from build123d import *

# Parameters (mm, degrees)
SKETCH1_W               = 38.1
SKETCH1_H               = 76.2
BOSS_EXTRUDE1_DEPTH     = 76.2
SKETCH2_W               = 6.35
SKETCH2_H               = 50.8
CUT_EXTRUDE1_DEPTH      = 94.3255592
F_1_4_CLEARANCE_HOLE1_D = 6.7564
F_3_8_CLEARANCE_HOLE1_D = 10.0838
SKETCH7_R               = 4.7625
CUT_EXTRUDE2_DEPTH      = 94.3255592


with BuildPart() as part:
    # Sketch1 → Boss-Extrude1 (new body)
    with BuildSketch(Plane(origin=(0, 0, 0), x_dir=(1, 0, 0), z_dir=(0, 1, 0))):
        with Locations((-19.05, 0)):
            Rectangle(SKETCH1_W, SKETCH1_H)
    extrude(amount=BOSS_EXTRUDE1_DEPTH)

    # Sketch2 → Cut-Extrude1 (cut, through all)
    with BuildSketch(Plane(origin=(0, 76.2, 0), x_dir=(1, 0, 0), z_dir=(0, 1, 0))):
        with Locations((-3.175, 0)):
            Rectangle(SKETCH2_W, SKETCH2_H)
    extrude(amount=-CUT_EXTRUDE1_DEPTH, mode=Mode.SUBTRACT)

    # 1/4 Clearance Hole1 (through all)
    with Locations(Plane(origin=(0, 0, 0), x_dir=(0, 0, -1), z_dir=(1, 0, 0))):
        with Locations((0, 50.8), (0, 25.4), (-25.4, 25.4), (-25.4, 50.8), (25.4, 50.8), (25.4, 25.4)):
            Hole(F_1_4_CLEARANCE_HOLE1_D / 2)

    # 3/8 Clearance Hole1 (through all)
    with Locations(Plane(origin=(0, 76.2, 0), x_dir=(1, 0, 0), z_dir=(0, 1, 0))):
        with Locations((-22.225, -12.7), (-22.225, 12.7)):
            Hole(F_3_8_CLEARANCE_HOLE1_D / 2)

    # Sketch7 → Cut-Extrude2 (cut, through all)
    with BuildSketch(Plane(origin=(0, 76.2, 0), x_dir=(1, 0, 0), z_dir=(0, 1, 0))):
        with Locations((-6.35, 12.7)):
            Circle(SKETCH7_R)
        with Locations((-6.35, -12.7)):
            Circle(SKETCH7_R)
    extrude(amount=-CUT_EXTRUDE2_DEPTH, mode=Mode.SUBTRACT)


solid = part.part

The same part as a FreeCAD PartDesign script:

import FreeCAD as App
import Part
import Sketcher
from FreeCAD import Vector
Q = App.Units.Quantity


def add_polygon(sketch, points):
    """Adds a closed chain of lines whose ends are joined by coincident constraints."""
    first, n = sketch.GeometryCount, len(points)
    for a, b in zip(points, points[1:] + points[:1]):
        sketch.addGeometry(Part.LineSegment(App.Vector(*a, 0), App.Vector(*b, 0)), False)
    for i in range(n):
        sketch.addConstraint(Sketcher.Constraint("Coincident", first + i, 2, first + (i + 1) % n, 1))

doc = App.newDocument("Part")
params = doc.addObject("Spreadsheet::Sheet", "Params")
for row, (alias, value) in enumerate([
    ("sketch1_height", "3 in"),
    ("sketch1_width", "1.5 in"),
    ("pad1_length", "3 in"),
    ("sketch2_height", "2 in"),
    ("sketch2_width", "0.25 in"),
    ("sketch3_diameter", "0.266 in"),
    ("hole_diameter", "0.266 in"),
    ("sketch4_diameter", "0.397 in"),
    ("hole2_diameter", "0.397 in"),
    ("sketch5_diameter", "0.375 in"),
], start=1):
    params.set(f"A{row}", alias)
    params.set(f"B{row}", "=" + value)
    params.setAlias(f"B{row}", alias)

body = doc.addObject("PartDesign::Body", "Body")

# Sketch on XZ plane
sketch1 = body.newObject("Sketcher::SketchObject", "Sketch")
sketch1.AttachmentSupport = (doc.getObject("XZ_Plane"), [""])
sketch1.MapMode = "FlatFace"
add_polygon(sketch1, [(-38.1, -38.1), (-38.1, 38.1), (0, 38.1), (0, -38.1)])  # lines 0-3
sketch1.addConstraint(Sketcher.Constraint("Vertical", 0))
sketch1.addConstraint(Sketcher.Constraint("Horizontal", 1))
sketch1.addConstraint(Sketcher.Constraint("Vertical", 2))
sketch1.addConstraint(Sketcher.Constraint("Horizontal", 3))
sketch1.addConstraint(Sketcher.Constraint("Symmetric", 1, 2, 2, 2, -1, 1))
sketch1.addConstraint(Sketcher.Constraint("DistanceY", 0, 1, 0, 2, Q("3 in")))
sketch1.addConstraint(Sketcher.Constraint("DistanceX", 1, 1, 1, 2, Q("1.5 in")))
sketch1.setExpression("Constraints[9]", "Params.sketch1_height")
sketch1.setExpression("Constraints[10]", "Params.sketch1_width")
pad1 = body.newObject("PartDesign::Pad", "Pad")
pad1.Profile = sketch1
pad1.setExpression("Length", "Params.pad1_length")
pad1.Reversed = True

# Sketch on XZ plane
sketch2 = body.newObject("Sketcher::SketchObject", "Sketch001")
sketch2.AttachmentSupport = (doc.getObject("XZ_Plane"), [""])
sketch2.MapMode = "FlatFace"
sketch2.AttachmentOffset = App.Placement(Vector(0, 0, -3 * 25.4), App.Rotation())
add_polygon(sketch2, [(-6.35, -25.4), (-6.35, 25.4), (0, 25.4), (0, -25.4)])  # lines 0-3
sketch2.addConstraint(Sketcher.Constraint("Vertical", 0))
sketch2.addConstraint(Sketcher.Constraint("Horizontal", 1))
sketch2.addConstraint(Sketcher.Constraint("Vertical", 2))
sketch2.addConstraint(Sketcher.Constraint("Horizontal", 3))
sketch2.addConstraint(Sketcher.Constraint("Symmetric", 1, 2, 2, 2, -1, 1))
sketch2.addConstraint(Sketcher.Constraint("DistanceY", 0, 1, 0, 2, Q("2 in")))
sketch2.addConstraint(Sketcher.Constraint("DistanceX", 1, 1, 1, 2, Q("0.25 in")))
sketch2.setExpression("Constraints[9]", "Params.sketch2_height")
sketch2.setExpression("Constraints[10]", "Params.sketch2_width")
pocket1 = body.newObject("PartDesign::Pocket", "Pocket")
pocket1.Profile = sketch2
pocket1.Type = "ThroughAll"
pocket1.Reversed = True

# Sketch on YZ plane
sketch3 = body.newObject("Sketcher::SketchObject", "Sketch002")
sketch3.AttachmentSupport = (doc.getObject("YZ_Plane"), [""])
sketch3.MapMode = "FlatFace"
sketch3.addGeometry(Part.Circle(Vector(50.8, 0, 0), Vector(0, 0, 1), 3.3782), False)
sketch3.addGeometry(Part.Circle(Vector(25.4, 0, 0), Vector(0, 0, 1), 3.3782), False)
sketch3.addGeometry(Part.Circle(Vector(25.4, 25.4, 0), Vector(0, 0, 1), 3.3782), False)
sketch3.addGeometry(Part.Circle(Vector(50.8, 25.4, 0), Vector(0, 0, 1), 3.3782), False)
sketch3.addGeometry(Part.Circle(Vector(50.8, -25.4, 0), Vector(0, 0, 1), 3.3782), False)
sketch3.addGeometry(Part.Circle(Vector(25.4, -25.4, 0), Vector(0, 0, 1), 3.3782), False)
sketch3.addConstraint(Sketcher.Constraint("Equal", 0, 1))
sketch3.addConstraint(Sketcher.Constraint("Equal", 1, 2))
sketch3.addConstraint(Sketcher.Constraint("Equal", 2, 3))
sketch3.addConstraint(Sketcher.Constraint("Equal", 3, 4))
sketch3.addConstraint(Sketcher.Constraint("Equal", 4, 5))
sketch3.addConstraint(Sketcher.Constraint("Symmetric", 3, 3, 4, 3, -1))
sketch3.addConstraint(Sketcher.Constraint("Symmetric", 2, 3, 5, 3, -1))
sketch3.addConstraint(Sketcher.Constraint("PointOnObject", 0, 3, -1))
sketch3.addConstraint(Sketcher.Constraint("PointOnObject", 1, 3, -1))
sketch3.addConstraint(Sketcher.Constraint("Horizontal", 2, 3, 3, 3))
sketch3.addConstraint(Sketcher.Constraint("Vertical", 1, 3, 2, 3))
sketch3.addConstraint(Sketcher.Constraint("Vertical", 0, 3, 3, 3))
sketch3.addConstraint(Sketcher.Constraint("Diameter", 0, Q("0.266 in")))
sketch3.addConstraint(Sketcher.Constraint("DistanceX", -1, 1, 0, 3, Q("2 in")))
sketch3.addConstraint(Sketcher.Constraint("DistanceX", -1, 1, 1, 3, Q("1 in")))
sketch3.addConstraint(Sketcher.Constraint("DistanceY", -1, 1, 2, 3, Q("1 in")))
sketch3.setExpression("Constraints[12]", "Params.sketch3_diameter")
doc.recompute()
hole = body.newObject("PartDesign::Hole", "Hole")
hole.Profile = sketch3
hole.ThreadType = "None"
hole.setExpression("Diameter", "Params.hole_diameter")
hole.DepthType = "ThroughAll"

# Sketch on XZ plane
sketch4 = body.newObject("Sketcher::SketchObject", "Sketch003")
sketch4.AttachmentSupport = (doc.getObject("XZ_Plane"), [""])
sketch4.MapMode = "FlatFace"
sketch4.AttachmentOffset = App.Placement(Vector(0, 0, -3 * 25.4), App.Rotation())
sketch4.addGeometry(Part.Circle(Vector(-22.225, 12.7, 0), Vector(0, 0, 1), 5.0419), False)
sketch4.addGeometry(Part.Circle(Vector(-22.225, -12.7, 0), Vector(0, 0, 1), 5.0419), False)
sketch4.addConstraint(Sketcher.Constraint("Equal", 0, 1))
sketch4.addConstraint(Sketcher.Constraint("Symmetric", 0, 3, 1, 3, -1))
sketch4.addConstraint(Sketcher.Constraint("Diameter", 0, Q("0.397 in")))
sketch4.addConstraint(Sketcher.Constraint("DistanceY", 1, 3, 0, 3, Q("1 in")))
sketch4.addConstraint(Sketcher.Constraint("DistanceX", 0, 3, -1, 1, Q("0.875 in")))
sketch4.setExpression("Constraints[2]", "Params.sketch4_diameter")
doc.recompute()
hole2 = body.newObject("PartDesign::Hole", "Hole001")
hole2.Profile = sketch4
hole2.ThreadType = "None"
hole2.setExpression("Diameter", "Params.hole2_diameter")
hole2.DepthType = "ThroughAll"
hole2.Reversed = True

# Sketch on XZ plane
sketch5 = body.newObject("Sketcher::SketchObject", "Sketch004")
sketch5.AttachmentSupport = (doc.getObject("XZ_Plane"), [""])
sketch5.MapMode = "FlatFace"
sketch5.AttachmentOffset = App.Placement(Vector(0, 0, -3 * 25.4), App.Rotation())
sketch5.addGeometry(Part.Circle(Vector(-6.35, -12.7, 0), Vector(0, 0, 1), 4.7625), False)
sketch5.addGeometry(Part.Circle(Vector(-6.35, 12.7, 0), Vector(0, 0, 1), 4.7625), False)
sketch5.addConstraint(Sketcher.Constraint("Equal", 0, 1))
sketch5.addConstraint(Sketcher.Constraint("Symmetric", 0, 3, 1, 3, -1))
sketch5.addConstraint(Sketcher.Constraint("Diameter", 0, Q("0.375 in")))
sketch5.addConstraint(Sketcher.Constraint("DistanceY", 0, 3, 1, 3, Q("1 in")))
sketch5.addConstraint(Sketcher.Constraint("DistanceX", 0, 3, -1, 1, Q("0.25 in")))
sketch5.setExpression("Constraints[2]", "Params.sketch5_diameter")
pocket2 = body.newObject("PartDesign::Pocket", "Pocket001")
pocket2.Profile = sketch5
pocket2.Type = "ThroughAll"
pocket2.Reversed = True

doc.recompute()
